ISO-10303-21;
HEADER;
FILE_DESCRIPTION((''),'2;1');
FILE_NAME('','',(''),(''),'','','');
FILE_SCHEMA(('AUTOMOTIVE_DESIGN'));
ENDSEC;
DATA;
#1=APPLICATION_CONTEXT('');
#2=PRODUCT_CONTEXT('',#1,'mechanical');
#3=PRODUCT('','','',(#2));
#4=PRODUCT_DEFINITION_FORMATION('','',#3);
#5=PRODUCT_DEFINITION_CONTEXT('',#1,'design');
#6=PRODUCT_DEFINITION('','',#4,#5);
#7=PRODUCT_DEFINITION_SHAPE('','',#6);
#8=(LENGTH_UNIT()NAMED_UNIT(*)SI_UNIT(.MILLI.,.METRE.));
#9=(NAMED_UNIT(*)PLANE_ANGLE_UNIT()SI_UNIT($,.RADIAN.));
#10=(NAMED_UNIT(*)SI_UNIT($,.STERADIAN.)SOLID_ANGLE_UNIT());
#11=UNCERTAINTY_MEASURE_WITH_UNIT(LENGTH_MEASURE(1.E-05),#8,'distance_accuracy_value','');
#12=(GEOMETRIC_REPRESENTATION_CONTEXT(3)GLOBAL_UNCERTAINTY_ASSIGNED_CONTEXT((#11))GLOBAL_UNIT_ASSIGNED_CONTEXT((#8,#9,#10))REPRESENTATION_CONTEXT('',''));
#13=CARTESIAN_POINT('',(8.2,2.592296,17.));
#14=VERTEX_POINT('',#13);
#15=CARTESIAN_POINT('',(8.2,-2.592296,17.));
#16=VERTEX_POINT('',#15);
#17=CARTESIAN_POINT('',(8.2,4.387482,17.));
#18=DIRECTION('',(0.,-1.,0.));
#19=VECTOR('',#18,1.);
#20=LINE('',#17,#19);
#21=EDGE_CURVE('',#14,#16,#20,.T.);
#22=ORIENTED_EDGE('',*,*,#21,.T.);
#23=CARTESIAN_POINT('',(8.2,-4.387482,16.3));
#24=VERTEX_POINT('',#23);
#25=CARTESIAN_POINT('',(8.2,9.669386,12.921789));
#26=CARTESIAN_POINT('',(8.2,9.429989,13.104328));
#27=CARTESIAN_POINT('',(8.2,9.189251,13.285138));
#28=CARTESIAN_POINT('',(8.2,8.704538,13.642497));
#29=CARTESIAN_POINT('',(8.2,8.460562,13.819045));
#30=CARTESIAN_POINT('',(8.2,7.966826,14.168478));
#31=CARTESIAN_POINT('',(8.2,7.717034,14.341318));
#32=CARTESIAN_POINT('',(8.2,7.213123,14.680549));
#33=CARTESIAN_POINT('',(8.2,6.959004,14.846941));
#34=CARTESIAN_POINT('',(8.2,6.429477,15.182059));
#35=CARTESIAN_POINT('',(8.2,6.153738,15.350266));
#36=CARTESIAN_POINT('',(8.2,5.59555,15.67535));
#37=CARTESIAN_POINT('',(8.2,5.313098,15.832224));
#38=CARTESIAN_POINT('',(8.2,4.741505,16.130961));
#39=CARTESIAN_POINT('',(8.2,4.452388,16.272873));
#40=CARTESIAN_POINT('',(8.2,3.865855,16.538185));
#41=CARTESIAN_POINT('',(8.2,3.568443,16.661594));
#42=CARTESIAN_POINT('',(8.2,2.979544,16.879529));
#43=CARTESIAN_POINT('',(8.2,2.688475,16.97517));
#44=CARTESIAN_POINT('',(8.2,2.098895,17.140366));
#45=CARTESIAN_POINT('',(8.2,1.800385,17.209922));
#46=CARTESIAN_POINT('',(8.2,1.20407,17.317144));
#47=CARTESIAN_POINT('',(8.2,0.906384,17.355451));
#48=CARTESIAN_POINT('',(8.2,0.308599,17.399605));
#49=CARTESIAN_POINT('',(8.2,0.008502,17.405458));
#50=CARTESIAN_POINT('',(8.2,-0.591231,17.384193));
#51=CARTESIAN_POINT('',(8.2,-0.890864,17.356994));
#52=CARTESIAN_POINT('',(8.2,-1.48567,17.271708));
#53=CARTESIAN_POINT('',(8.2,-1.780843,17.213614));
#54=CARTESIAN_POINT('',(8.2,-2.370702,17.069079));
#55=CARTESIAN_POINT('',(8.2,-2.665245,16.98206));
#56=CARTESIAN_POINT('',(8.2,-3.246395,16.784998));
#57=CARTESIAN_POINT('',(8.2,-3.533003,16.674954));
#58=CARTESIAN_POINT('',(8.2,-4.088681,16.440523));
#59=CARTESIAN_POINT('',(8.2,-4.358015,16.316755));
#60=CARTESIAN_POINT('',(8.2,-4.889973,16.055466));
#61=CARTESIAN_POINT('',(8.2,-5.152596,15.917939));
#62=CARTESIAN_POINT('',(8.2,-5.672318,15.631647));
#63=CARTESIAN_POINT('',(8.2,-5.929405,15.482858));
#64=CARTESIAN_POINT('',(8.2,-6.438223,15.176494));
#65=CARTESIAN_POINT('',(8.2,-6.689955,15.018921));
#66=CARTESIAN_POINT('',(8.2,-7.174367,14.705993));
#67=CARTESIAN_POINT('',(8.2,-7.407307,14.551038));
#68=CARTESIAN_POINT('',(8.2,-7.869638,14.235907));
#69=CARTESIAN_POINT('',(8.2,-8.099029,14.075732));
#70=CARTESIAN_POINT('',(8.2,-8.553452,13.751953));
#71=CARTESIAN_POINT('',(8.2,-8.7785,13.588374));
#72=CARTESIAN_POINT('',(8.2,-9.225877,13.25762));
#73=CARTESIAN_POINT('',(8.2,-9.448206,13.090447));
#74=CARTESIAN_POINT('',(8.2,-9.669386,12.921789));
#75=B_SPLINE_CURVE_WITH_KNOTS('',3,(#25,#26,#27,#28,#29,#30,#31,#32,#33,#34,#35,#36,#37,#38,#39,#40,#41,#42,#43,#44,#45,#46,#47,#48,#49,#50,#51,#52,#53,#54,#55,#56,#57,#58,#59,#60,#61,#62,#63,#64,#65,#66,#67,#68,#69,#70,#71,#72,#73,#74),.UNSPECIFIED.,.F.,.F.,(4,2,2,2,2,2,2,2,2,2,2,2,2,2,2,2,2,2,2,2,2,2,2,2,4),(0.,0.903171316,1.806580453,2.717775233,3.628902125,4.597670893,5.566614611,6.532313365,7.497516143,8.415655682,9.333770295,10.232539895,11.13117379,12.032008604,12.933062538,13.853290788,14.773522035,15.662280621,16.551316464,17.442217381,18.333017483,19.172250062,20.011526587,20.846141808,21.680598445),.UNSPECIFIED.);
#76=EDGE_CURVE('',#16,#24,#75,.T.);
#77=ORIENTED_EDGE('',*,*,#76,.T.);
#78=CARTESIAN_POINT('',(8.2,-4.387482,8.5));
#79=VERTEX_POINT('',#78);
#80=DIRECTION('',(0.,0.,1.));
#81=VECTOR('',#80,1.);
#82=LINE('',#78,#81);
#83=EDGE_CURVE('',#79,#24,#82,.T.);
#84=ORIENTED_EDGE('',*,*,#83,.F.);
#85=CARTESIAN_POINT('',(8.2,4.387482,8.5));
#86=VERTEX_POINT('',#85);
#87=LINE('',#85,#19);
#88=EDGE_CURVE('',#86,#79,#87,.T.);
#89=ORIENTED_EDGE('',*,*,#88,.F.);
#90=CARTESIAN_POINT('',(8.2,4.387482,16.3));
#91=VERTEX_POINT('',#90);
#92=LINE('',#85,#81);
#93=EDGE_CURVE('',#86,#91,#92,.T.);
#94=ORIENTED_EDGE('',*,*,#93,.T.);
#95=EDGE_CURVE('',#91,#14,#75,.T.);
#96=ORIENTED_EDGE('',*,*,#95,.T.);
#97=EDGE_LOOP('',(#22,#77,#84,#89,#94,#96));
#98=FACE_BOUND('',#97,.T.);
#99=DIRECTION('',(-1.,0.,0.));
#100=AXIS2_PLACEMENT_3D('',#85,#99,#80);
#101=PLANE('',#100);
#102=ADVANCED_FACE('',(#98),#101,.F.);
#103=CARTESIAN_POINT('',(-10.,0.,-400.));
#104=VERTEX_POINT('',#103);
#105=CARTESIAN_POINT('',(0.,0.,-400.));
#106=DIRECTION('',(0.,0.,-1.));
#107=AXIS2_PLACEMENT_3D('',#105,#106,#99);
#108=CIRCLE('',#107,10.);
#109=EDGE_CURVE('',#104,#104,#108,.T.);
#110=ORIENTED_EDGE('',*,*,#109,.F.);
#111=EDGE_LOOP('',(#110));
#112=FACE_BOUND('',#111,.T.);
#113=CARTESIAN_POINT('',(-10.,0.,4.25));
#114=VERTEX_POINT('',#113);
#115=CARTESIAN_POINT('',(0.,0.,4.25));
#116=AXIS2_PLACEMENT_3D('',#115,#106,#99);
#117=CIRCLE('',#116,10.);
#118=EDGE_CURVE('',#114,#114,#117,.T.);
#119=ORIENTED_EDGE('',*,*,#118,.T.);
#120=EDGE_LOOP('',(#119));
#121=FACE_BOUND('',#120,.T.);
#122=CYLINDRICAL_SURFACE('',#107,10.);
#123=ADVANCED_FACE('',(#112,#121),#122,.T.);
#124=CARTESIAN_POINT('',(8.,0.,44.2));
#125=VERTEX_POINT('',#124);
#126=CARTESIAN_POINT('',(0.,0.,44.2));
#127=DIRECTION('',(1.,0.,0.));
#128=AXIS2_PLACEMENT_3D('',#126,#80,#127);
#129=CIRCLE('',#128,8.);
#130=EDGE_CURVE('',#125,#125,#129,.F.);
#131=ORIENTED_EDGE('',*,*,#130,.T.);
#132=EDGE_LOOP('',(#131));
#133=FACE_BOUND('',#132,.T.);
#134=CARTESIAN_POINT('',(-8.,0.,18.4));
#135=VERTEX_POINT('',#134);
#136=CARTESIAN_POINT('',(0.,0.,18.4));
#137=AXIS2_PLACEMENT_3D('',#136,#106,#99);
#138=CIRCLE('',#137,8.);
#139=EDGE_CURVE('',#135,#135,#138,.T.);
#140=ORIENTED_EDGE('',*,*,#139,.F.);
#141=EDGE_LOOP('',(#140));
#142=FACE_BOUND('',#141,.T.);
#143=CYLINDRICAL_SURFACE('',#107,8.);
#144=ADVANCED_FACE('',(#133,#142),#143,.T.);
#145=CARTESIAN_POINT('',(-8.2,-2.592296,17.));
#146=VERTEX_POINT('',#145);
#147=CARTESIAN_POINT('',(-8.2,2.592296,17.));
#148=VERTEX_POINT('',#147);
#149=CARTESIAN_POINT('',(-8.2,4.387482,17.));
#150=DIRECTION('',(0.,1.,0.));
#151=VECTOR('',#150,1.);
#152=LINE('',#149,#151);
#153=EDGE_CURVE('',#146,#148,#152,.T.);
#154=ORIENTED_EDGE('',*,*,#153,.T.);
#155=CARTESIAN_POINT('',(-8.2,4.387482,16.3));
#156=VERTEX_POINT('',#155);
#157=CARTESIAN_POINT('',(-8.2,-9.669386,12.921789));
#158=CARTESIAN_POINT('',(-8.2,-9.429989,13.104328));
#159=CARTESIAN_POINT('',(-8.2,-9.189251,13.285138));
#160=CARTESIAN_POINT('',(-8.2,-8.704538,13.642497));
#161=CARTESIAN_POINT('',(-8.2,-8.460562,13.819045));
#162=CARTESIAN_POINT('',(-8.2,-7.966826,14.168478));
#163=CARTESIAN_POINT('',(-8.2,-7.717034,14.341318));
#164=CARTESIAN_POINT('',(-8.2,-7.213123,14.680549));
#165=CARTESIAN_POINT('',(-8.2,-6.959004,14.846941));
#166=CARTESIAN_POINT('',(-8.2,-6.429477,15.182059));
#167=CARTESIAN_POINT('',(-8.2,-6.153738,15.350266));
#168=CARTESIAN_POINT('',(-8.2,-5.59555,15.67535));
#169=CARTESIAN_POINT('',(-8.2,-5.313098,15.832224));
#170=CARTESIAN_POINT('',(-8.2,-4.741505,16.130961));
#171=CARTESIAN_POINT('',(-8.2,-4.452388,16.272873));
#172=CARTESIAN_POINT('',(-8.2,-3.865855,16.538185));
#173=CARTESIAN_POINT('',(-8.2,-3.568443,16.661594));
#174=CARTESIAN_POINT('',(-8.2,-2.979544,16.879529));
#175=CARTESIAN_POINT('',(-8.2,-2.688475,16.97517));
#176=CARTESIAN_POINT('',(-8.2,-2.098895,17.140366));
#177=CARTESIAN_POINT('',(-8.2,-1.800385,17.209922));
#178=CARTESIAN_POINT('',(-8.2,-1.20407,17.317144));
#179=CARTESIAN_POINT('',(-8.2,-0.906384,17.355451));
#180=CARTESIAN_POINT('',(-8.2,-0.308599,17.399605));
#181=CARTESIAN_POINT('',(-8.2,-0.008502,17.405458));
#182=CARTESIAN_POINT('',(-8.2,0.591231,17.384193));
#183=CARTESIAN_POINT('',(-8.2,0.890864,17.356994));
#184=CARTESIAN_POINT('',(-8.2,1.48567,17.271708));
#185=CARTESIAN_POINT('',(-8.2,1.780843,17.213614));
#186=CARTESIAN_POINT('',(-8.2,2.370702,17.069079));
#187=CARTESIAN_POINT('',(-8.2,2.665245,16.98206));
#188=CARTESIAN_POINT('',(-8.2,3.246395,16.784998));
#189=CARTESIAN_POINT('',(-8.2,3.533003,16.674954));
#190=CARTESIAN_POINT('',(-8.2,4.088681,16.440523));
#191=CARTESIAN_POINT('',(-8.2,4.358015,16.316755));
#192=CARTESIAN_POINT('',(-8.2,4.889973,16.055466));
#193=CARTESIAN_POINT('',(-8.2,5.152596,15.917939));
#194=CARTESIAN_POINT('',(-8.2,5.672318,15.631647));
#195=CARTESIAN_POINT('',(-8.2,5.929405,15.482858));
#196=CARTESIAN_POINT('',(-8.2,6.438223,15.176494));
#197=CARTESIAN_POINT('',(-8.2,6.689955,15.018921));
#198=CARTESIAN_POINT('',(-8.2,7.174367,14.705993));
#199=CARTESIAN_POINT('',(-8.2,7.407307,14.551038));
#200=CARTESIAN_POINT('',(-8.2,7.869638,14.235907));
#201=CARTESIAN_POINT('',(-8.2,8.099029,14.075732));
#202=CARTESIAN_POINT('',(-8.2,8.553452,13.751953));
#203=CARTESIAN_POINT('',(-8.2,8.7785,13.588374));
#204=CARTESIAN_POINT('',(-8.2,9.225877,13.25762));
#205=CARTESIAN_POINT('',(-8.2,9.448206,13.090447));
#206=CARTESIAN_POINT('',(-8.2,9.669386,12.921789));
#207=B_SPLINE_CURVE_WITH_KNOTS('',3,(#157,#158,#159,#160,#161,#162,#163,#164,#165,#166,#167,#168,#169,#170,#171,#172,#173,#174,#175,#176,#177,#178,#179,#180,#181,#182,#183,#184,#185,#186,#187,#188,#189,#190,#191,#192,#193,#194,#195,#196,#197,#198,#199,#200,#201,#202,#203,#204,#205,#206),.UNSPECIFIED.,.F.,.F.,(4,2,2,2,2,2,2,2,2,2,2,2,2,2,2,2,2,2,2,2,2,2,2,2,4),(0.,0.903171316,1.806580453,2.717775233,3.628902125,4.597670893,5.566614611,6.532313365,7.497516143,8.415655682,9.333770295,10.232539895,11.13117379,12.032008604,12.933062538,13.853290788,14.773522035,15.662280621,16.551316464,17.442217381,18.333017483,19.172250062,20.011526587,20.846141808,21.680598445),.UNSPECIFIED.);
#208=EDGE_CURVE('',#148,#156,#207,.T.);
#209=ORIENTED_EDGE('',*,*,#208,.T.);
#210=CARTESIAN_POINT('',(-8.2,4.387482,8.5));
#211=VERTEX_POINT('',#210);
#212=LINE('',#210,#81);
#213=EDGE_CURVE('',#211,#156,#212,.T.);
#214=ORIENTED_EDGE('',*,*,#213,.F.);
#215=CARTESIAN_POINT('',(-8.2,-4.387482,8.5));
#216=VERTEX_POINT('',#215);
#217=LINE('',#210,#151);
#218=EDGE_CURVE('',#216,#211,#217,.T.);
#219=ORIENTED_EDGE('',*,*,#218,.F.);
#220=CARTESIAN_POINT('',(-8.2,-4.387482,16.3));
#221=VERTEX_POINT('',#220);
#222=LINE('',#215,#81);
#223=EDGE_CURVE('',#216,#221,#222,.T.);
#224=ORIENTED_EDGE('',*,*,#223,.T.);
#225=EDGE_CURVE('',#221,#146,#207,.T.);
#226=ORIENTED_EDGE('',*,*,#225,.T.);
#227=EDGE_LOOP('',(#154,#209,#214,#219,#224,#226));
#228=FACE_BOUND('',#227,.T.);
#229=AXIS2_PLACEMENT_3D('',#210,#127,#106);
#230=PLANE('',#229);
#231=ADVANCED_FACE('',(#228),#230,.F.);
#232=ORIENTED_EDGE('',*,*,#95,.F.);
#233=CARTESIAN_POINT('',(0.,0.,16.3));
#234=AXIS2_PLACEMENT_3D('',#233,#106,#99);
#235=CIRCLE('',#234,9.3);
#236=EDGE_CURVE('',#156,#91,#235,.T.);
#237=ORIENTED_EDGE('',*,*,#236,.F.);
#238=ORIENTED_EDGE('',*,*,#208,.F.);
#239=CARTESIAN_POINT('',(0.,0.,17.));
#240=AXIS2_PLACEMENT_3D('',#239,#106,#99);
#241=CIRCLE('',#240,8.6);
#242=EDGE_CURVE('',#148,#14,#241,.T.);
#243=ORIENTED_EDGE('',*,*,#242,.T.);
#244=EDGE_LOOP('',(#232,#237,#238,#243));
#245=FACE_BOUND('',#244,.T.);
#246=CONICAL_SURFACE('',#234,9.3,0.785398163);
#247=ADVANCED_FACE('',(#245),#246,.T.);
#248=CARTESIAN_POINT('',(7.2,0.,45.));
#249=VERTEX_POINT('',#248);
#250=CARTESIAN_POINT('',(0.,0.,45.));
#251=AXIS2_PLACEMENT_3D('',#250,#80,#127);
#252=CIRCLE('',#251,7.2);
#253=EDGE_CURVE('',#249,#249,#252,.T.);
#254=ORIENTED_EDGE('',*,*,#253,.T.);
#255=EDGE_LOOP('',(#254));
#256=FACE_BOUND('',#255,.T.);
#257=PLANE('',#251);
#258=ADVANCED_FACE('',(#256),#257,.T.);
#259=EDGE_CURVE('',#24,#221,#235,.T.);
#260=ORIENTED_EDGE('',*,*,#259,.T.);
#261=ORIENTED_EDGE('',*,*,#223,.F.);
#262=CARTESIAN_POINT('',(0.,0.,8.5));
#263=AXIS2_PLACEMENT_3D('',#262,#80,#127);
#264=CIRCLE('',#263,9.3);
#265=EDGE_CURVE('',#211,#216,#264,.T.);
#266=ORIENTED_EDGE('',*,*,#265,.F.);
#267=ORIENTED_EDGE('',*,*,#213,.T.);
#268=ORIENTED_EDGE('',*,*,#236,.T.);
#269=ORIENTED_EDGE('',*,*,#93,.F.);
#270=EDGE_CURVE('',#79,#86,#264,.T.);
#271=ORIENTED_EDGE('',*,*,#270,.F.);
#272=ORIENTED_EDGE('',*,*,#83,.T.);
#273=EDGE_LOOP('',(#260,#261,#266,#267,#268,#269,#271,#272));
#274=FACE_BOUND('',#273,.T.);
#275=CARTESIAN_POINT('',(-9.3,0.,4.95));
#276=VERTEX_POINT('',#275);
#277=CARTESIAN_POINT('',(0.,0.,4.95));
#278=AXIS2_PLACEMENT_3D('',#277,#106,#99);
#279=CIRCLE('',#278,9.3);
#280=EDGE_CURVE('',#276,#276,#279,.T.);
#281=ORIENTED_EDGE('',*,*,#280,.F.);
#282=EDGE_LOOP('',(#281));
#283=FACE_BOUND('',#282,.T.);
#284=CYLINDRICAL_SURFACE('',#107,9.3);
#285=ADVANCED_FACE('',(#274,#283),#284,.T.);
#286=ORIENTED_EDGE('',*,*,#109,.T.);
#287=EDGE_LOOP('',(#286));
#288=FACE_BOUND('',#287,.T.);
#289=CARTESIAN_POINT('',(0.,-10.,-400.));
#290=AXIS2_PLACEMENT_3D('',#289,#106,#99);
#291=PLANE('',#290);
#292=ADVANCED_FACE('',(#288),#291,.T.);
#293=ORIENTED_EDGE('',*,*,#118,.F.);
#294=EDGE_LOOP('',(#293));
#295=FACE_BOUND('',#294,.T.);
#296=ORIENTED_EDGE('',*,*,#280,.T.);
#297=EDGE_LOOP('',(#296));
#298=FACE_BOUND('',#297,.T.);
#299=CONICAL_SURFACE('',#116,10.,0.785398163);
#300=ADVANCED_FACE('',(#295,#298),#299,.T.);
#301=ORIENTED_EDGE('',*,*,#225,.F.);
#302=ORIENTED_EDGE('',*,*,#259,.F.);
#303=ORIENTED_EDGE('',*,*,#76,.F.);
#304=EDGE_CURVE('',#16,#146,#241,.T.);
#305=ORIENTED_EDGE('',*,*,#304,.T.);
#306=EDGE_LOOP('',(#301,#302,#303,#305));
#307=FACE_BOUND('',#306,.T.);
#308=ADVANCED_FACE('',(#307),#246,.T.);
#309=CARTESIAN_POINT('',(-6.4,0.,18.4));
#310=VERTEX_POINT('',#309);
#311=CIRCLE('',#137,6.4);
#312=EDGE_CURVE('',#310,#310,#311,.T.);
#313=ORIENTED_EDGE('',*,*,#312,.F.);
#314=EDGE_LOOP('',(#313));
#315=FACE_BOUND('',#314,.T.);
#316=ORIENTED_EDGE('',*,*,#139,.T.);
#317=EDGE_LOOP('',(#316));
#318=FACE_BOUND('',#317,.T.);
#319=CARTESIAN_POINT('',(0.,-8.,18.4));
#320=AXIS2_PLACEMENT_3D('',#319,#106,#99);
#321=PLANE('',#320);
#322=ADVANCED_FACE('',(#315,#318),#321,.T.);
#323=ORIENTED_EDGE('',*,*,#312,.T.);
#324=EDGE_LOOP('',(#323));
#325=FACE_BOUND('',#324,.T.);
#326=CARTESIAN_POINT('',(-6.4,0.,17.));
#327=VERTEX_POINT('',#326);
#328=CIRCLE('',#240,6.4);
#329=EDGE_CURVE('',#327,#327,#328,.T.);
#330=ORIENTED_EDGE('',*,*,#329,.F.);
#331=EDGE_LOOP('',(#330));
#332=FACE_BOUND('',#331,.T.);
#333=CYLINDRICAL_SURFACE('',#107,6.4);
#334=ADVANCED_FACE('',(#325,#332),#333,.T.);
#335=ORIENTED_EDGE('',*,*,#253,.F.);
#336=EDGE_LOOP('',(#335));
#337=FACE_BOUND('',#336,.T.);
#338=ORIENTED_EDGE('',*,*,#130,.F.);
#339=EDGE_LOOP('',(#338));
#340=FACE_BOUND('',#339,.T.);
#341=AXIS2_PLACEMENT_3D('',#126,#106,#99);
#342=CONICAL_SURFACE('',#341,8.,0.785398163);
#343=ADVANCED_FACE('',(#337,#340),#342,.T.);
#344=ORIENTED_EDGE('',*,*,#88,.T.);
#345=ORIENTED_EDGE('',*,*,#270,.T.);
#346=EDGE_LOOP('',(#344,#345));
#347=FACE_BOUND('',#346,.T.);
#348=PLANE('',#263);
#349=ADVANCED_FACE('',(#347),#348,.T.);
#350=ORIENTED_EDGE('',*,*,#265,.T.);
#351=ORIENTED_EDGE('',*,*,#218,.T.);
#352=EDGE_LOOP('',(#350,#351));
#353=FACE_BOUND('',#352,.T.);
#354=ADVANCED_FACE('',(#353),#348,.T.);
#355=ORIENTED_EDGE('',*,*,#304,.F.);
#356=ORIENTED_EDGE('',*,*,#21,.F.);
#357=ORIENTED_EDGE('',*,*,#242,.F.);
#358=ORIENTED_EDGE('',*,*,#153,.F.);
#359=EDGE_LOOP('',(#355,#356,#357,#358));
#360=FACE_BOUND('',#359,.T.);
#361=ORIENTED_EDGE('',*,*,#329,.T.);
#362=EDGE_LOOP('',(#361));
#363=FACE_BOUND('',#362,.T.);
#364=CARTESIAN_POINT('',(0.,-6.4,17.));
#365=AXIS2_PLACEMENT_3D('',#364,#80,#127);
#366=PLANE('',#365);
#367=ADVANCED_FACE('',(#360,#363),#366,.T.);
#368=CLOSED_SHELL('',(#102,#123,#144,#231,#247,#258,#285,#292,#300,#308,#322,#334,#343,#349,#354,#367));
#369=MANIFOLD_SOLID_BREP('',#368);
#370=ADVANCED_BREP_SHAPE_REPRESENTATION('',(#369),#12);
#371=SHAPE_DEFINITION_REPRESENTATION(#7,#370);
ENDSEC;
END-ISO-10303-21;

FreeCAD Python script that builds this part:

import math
import FreeCAD as App
import Part
import Sketcher

V = App.Vector
Q = App.Units.Quantity


def edges_at(feature, points):
    """Names of the edges that pass closest to the given points."""
    edges = feature.Shape.Edges
    near = lambda p: min(range(len(edges)), key=lambda i: edges[i].distToShape(Part.Vertex(*p))[0])
    return sorted({f"Edge{near(p) + 1}" for p in points})


def add_polygon(sketch, points):
    """Adds a closed chain of lines whose ends are joined by coincident constraints."""
    first, n = sketch.GeometryCount, len(points)
    for a, b in zip(points, points[1:] + points[:1]):
        sketch.addGeometry(Part.LineSegment(App.Vector(*a, 0), App.Vector(*b, 0)), False)
    for i in range(n):
        sketch.addConstraint(Sketcher.Constraint("Coincident", first + i, 2, first + (i + 1) % n, 1))

doc = App.newDocument("Part")
params = doc.addObject("Spreadsheet::Sheet", "Params")
for row, (alias, value) in enumerate([
    ("sketch1_width", "8 mm"),
    ("sketch1_width2", "10 mm"),
    ("sketch1_height", "445 mm"),
    ("sketch1_width3", "2.2 mm"),
    ("sketch1_width4", "1.6 mm"),
    ("revolution_angle", "360 deg"),
    ("sketch2_radius", "9.3 mm"),
    ("pocket1_length", "8.5 mm"),
    ("chamfer_size", "0.8 mm"),
], start=1):
    params.set(f"A{row}", alias)
    params.set(f"B{row}", "=" + value)
    params.setAlias(f"B{row}", alias)

body = doc.addObject("PartDesign::Body", "Body")

# Sketch on YZ plane
sketch1 = body.newObject("Sketcher::SketchObject", "Sketch")
sketch1.AttachmentSupport = (doc.getObject("YZ_Plane"), [""])
sketch1.MapMode = "FlatFace"
add_polygon(sketch1, [(8, 45), (0, 45), (0, -400), (10, -400), (10, 4.2), (9.3, 5), (9.3, 16.3), (8.6, 17), (6.4, 17), (6.4, 18.4), (8, 18.4)])  # lines 0-10
sketch1.addConstraint(Sketcher.Constraint("Horizontal", 0))
sketch1.addConstraint(Sketcher.Constraint("Vertical", 1))
sketch1.addConstraint(Sketcher.Constraint("Horizontal", 2))
sketch1.addConstraint(Sketcher.Constraint("Vertical", 3))
sketch1.addConstraint(Sketcher.Constraint("Vertical", 5))
sketch1.addConstraint(Sketcher.Constraint("Horizontal", 7))
sketch1.addConstraint(Sketcher.Constraint("Vertical", 8))
sketch1.addConstraint(Sketcher.Constraint("Horizontal", 9))
sketch1.addConstraint(Sketcher.Constraint("Vertical", 10))
sketch1.addConstraint(Sketcher.Constraint("PointOnObject", 0, 2, -2))
sketch1.addConstraint(Sketcher.Constraint("Parallel", 4, 6))
sketch1.addConstraint(Sketcher.Constraint("Equal", 4, 6))
sketch1.addConstraint(Sketcher.Constraint("DistanceX", 0, 2, 0, 1, 8.0))
sketch1.addConstraint(Sketcher.Constraint("DistanceX", 2, 1, 2, 2, 10.0))
sketch1.addConstraint(Sketcher.Constraint("DistanceY", 1, 2, 1, 1, 445.0))
sketch1.addConstraint(Sketcher.Constraint("Angle", 4, Q("135 deg")))
sketch1.addConstraint(Sketcher.Constraint("DistanceX", 7, 2, 7, 1, 2.2))
sketch1.addConstraint(Sketcher.Constraint("DistanceX", 9, 1, 9, 2, 1.6))
sketch1.addConstraint(Sketcher.Constraint("DistanceY", 8, 1, 8, 2, 1.4))
sketch1.addConstraint(Sketcher.Constraint("DistanceY", 10, 1, 10, 2, 26.6))
sketch1.addConstraint(Sketcher.Constraint("DistanceY", -1, 1, 0, 2, 45.0))
sketch1.addConstraint(Sketcher.Constraint("DistanceY", 3, 1, 3, 2, 404.25))
sketch1.setExpression("Constraints[23]", "Params.sketch1_width")
sketch1.setExpression("Constraints[24]", "Params.sketch1_width2")
sketch1.setExpression("Constraints[25]", "Params.sketch1_height")
sketch1.setExpression("Constraints[27]", "Params.sketch1_width3")
sketch1.setExpression("Constraints[28]", "Params.sketch1_width4")
revolution = body.newObject("PartDesign::Revolution", "Revolution")
revolution.Profile = sketch1
revolution.ReferenceAxis = (sketch1, ["V_Axis"])
revolution.setExpression("Angle", "Params.revolution_angle")

# Sketch on XY plane
sketch2 = body.newObject("Sketcher::SketchObject", "Sketch001")
sketch2.AttachmentSupport = (doc.getObject("XY_Plane"), [""])
sketch2.MapMode = "FlatFace"
sketch2.AttachmentOffset = App.Placement(V(0, 0, 8.5), App.Rotation())
sketch2.addGeometry(Part.LineSegment(V(8, 4, 0), V(8, -4, 0)), False)
sketch2.addGeometry(Part.ArcOfCircle(Part.Circle(V(0, 0, 0), V(0, 0, 1), 9), math.radians(-28), math.radians(28)), False)
sketch2.addGeometry(Part.LineSegment(V(-8, -4, 0), V(-8, 4, 0)), False)
sketch2.addGeometry(Part.ArcOfCircle(Part.Circle(V(0, 0, 0), V(0, 0, 1), 9), math.radians(152), math.radians(208)), False)
sketch2.addConstraint(Sketcher.Constraint("Coincident", 0, 1, 1, 2))
sketch2.addConstraint(Sketcher.Constraint("Coincident", 1, 1, 0, 2))
sketch2.addConstraint(Sketcher.Constraint("Coincident", 2, 1, 3, 2))
sketch2.addConstraint(Sketcher.Constraint("Coincident", 3, 1, 2, 2))
sketch2.addConstraint(Sketcher.Constraint("Vertical", 0))
sketch2.addConstraint(Sketcher.Constraint("Vertical", 2))
sketch2.addConstraint(Sketcher.Constraint("Coincident", 1, 3, -1, 1))
sketch2.addConstraint(Sketcher.Constraint("Coincident", 3, 3, -1, 1))
sketch2.addConstraint(Sketcher.Constraint("Equal", 1, 3))
sketch2.addConstraint(Sketcher.Constraint("Horizontal", 1, 1, 2, 1))
sketch2.addConstraint(Sketcher.Constraint("Radius", 1, 9.3))
sketch2.addConstraint(Sketcher.Constraint("DistanceX", -1, 1, 0, 1, 8.2))
sketch2.setExpression("Constraints[10]", "Params.sketch2_radius")
pocket1 = body.newObject("PartDesign::Pocket", "Pocket")
pocket1.Profile = sketch2
pocket1.setExpression("Length", "Params.pocket1_length")
pocket1.Reversed = True
doc.recompute()

chamfer = body.newObject("PartDesign::Chamfer", "Chamfer")
chamfer.Base = (pocket1, edges_at(pocket1, [(8, 0, 45)]))
chamfer.setExpression("Size", "Params.chamfer_size")

doc.recompute()
